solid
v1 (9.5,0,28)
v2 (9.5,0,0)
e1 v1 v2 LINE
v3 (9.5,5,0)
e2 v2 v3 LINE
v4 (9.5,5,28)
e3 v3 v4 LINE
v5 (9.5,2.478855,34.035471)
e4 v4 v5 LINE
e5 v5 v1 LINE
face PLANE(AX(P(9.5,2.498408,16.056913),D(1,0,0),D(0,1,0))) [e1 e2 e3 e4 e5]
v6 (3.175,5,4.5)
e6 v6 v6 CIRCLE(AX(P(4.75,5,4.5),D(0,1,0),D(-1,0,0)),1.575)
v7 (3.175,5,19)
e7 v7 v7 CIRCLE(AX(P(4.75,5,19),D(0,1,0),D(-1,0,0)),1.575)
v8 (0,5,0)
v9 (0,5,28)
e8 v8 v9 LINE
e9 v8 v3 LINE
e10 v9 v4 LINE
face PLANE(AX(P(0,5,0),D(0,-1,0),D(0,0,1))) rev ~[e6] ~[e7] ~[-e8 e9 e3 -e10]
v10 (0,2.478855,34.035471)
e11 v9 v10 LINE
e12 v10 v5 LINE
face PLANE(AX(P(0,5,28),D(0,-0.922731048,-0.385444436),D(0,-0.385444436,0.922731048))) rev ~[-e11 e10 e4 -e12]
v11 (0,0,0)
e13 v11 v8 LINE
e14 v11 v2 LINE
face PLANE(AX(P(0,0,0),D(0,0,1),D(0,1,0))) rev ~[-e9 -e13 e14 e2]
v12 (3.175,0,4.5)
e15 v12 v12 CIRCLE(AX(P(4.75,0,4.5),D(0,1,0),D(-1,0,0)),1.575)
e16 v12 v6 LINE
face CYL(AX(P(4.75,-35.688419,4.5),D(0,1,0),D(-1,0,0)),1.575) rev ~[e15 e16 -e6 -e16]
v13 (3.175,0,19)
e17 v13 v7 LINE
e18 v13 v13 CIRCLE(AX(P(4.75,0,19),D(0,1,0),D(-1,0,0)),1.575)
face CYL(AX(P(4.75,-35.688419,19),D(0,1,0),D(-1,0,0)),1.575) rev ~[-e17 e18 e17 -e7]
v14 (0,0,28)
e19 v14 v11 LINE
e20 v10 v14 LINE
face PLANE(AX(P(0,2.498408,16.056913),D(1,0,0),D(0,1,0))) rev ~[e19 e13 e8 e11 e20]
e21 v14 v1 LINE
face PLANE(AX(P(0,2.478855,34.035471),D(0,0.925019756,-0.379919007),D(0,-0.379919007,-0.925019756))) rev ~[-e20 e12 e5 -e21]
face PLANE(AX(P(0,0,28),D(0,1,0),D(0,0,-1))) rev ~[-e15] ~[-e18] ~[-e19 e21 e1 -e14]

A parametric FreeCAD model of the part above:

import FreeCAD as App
import Part
import Sketcher
from FreeCAD import Vector
Q = App.Units.Quantity


def add_polygon(sketch, points):
    """Adds a closed chain of lines whose ends are joined by coincident constraints."""
    first, n = sketch.GeometryCount, len(points)
    for a, b in zip(points, points[1:] + points[:1]):
        sketch.addGeometry(Part.LineSegment(App.Vector(*a, 0), App.Vector(*b, 0)), False)
    for i in range(n):
        sketch.addConstraint(Sketcher.Constraint("Coincident", first + i, 2, first + (i + 1) % n, 1))

doc = App.newDocument("Part")
body = doc.addObject("PartDesign::Body", "Body")

# Sketch on YZ plane
sketch1 = body.newObject("Sketcher::SketchObject", "Sketch")
sketch1.AttachmentSupport = (doc.getObject("YZ_Plane"), [""])
sketch1.MapMode = "FlatFace"
add_polygon(sketch1, [(0, 28), (0, 0), (5, 0), (5, 28), (2, 34)])  # lines 0-4
sketch1.addConstraint([
    Sketcher.Constraint("Vertical", 0),
    Sketcher.Constraint("Horizontal", 1),
    Sketcher.Constraint("Vertical", 2),
    Sketcher.Constraint("Coincident", 0, 2, -1, 1),
    Sketcher.Constraint("Horizontal", 2, 2, 4, 2),
    Sketcher.Constraint("DistanceX", 1, 1, 1, 2, Q("5 mm")),
    Sketcher.Constraint("DistanceY", 0, 2, 0, 1, Q("28 mm")),
    Sketcher.Constraint("DistanceY", -1, 1, 3, 2, Q("34.035471 mm")),
    Sketcher.Constraint("Distance", 3, Q("6.540877 mm")),
])
pad1 = body.newObject("PartDesign::Pad", "Pad")
pad1.Profile = sketch1
pad1.Length = 9.5

# Sketch on XZ plane
sketch2 = body.newObject("Sketcher::SketchObject", "Sketch001")
sketch2.AttachmentSupport = (doc.getObject("XZ_Plane"), [""])
sketch2.MapMode = "FlatFace"
sketch2.addGeometry([
    Part.Circle(Vector(4.8, 19, 0), Vector(0, 0, 1), 1.6),
    Part.Circle(Vector(4.8, 4.5, 0), Vector(0, 0, 1), 1.6),
], False)
sketch2.addConstraint([
    Sketcher.Constraint("Equal", 0, 1),
    Sketcher.Constraint("Vertical", 0, 3, 1, 3),
    Sketcher.Constraint("Diameter", 0, Q("3.15 mm")),
    Sketcher.Constraint("DistanceY", -1, 1, 0, 3, Q("19 mm")),
    Sketcher.Constraint("DistanceY", -1, 1, 1, 3, Q("4.5 mm")),
    Sketcher.Constraint("DistanceX", -1, 1, 0, 3, Q("4.75 mm")),
])
doc.recompute()
hole = body.newObject("PartDesign::Hole", "Hole")
hole.Profile = sketch2
hole.ThreadType = "None"
hole.Diameter = 3.15
hole.DepthType = "ThroughAll"

doc.recompute()
